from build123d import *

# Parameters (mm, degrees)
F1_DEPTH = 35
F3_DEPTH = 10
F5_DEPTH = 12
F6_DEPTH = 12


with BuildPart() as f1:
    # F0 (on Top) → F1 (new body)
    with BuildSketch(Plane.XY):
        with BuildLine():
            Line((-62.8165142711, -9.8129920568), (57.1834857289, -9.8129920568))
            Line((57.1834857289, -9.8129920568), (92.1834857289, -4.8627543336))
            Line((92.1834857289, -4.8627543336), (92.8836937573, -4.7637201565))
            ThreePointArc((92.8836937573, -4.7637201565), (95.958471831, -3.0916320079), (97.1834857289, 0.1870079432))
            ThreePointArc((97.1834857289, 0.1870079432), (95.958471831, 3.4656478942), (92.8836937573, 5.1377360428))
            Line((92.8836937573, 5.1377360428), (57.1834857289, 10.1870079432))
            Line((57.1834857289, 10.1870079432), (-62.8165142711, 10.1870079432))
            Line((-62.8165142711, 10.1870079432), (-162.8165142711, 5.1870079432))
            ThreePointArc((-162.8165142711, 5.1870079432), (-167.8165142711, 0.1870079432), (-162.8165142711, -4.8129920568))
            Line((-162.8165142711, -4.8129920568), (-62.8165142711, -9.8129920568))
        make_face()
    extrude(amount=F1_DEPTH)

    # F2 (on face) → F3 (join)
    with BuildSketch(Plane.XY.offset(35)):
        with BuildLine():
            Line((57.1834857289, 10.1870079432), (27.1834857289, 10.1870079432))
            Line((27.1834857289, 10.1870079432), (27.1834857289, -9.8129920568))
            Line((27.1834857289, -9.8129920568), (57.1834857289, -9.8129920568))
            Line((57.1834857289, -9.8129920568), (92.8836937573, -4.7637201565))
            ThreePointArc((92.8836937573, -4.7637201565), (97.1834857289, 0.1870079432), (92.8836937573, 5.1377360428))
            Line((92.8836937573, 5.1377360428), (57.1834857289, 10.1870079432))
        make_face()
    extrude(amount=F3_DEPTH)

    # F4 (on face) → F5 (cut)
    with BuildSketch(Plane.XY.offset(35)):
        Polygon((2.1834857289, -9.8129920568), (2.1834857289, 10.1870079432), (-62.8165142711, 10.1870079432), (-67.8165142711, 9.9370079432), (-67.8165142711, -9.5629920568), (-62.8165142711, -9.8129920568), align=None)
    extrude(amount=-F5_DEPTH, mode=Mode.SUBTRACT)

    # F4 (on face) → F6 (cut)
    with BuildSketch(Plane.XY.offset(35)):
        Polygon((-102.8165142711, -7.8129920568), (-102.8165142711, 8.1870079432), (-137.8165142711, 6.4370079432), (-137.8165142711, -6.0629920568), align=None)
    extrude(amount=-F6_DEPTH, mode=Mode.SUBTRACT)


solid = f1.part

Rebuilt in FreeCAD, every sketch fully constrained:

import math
import FreeCAD as App
import Part
import Sketcher
Q = App.Units.Quantity


def add_polygon(sketch, points):
    """Adds a closed chain of lines whose ends are joined by coincident constraints."""
    first, n = sketch.GeometryCount, len(points)
    for a, b in zip(points, points[1:] + points[:1]):
        sketch.addGeometry(Part.LineSegment(App.Vector(*a, 0), App.Vector(*b, 0)), False)
    for i in range(n):
        sketch.addConstraint(Sketcher.Constraint("Coincident", first + i, 2, first + (i + 1) % n, 1))

doc = App.newDocument("Part")
body = doc.addObject("PartDesign::Body", "Body")

# Sketch on XY plane
sketch1 = body.newObject("Sketcher::SketchObject", "Sketch")
sketch1.AttachmentSupport = (doc.getObject("XY_Plane"), [""])
sketch1.MapMode = "FlatFace"
sketch1.addGeometry([
    Part.LineSegment(App.Vector(-62.8, -9.8, 0), App.Vector(57.2, -9.8, 0)),  # 0
    Part.LineSegment(App.Vector(57.2, -9.8, 0), App.Vector(92.2, -4.9, 0)),  # 1
    Part.LineSegment(App.Vector(92.2, -4.9, 0), App.Vector(92.9, -4.8, 0)),  # 2
    Part.ArcOfCircle(Part.Circle(App.Vector(92.2, 0.2, 0), App.Vector(0, 0, 1), 5), math.radians(-82), math.radians(0)),  # 3
    Part.ArcOfCircle(Part.Circle(App.Vector(92.2, 0.2, 0), App.Vector(0, 0, 1), 5), math.radians(0), math.radians(82)),  # 4
    Part.LineSegment(App.Vector(92.9, 5.1, 0), App.Vector(57.2, 10.2, 0)),  # 5
    Part.LineSegment(App.Vector(57.2, 10.2, 0), App.Vector(-62.8, 10.2, 0)),  # 6
    Part.LineSegment(App.Vector(-62.8, 10.2, 0), App.Vector(-162.8, 5.2, 0)),  # 7
    Part.ArcOfCircle(Part.Circle(App.Vector(-162.8, 0.2, 0), App.Vector(0, 0, 1), 5), math.radians(90), math.radians(270)),  # 8
    Part.LineSegment(App.Vector(-162.8, -4.8, 0), App.Vector(-62.8, -9.8, 0)),  # 9
], False)
sketch1.addConstraint([
    Sketcher.Constraint("Coincident", 0, 2, 1, 1),
    Sketcher.Constraint("Coincident", 1, 2, 2, 1),
    Sketcher.Constraint("Tangent", 2, 2, 3, 1),
    Sketcher.Constraint("Tangent", 3, 2, 4, 1),
    Sketcher.Constraint("Tangent", 4, 2, 5, 1),
    Sketcher.Constraint("Coincident", 5, 2, 6, 1),
    Sketcher.Constraint("Coincident", 6, 2, 7, 1),
    Sketcher.Constraint("Coincident", 7, 2, 8, 1),
    Sketcher.Constraint("Coincident", 8, 2, 9, 1),
    Sketcher.Constraint("Coincident", 9, 2, 0, 1),
    Sketcher.Constraint("Horizontal", 0),
    Sketcher.Constraint("Horizontal", 6),
    Sketcher.Constraint("Equal", 3, 4),
    Sketcher.Constraint("Equal", 4, 8),
    Sketcher.Constraint("Parallel", 1, 2),
    Sketcher.Constraint("Horizontal", 4, 3, 8, 3),
    Sketcher.Constraint("Horizontal", 8, 3, 3, 2),
    Sketcher.Constraint("Vertical", 4, 3, 1, 2),
    Sketcher.Constraint("Vertical", 2, 2, 4, 2),
    Sketcher.Constraint("Vertical", 0, 2, 5, 2),
    Sketcher.Constraint("Vertical", 8, 3, 7, 2),
    Sketcher.Constraint("Vertical", 7, 2, 8, 2),
    Sketcher.Constraint("Vertical", 6, 2, 9, 2),
    Sketcher.Constraint("Radius", 3, Q("5 mm")),
    Sketcher.Constraint("DistanceX", 0, 1, 0, 2, Q("120 mm")),
    Sketcher.Constraint("DistanceX", 8, 3, 3, 3, Q("255 mm")),
    Sketcher.Constraint("DistanceX", 0, 2, 3, 3, Q("35 mm")),
    Sketcher.Constraint("DistanceY", 0, 2, 3, 3, Q("10 mm")),
    Sketcher.Constraint("DistanceY", 2, 2, -1, 1, Q("4.76372 mm")),
    Sketcher.Constraint("DistanceX", -1, 1, 3, 3, Q("92.183486 mm")),
])
pad1 = body.newObject("PartDesign::Pad", "Pad")
pad1.Profile = sketch1
pad1.Length = 35

# Sketch on XY plane
sketch2 = body.newObject("Sketcher::SketchObject", "Sketch001")
sketch2.AttachmentSupport = (doc.getObject("XY_Plane"), [""])
sketch2.MapMode = "FlatFace"
sketch2.AttachmentOffset = App.Placement(App.Vector(0, 0, 35), App.Rotation())
sketch2.addGeometry([
    Part.LineSegment(App.Vector(57, 10, 0), App.Vector(27, 10, 0)),  # 0
    Part.LineSegment(App.Vector(27, 10, 0), App.Vector(27, -10, 0)),  # 1
    Part.LineSegment(App.Vector(27, -10, 0), App.Vector(57, -10, 0)),  # 2
    Part.LineSegment(App.Vector(57, -10, 0), App.Vector(93, -5, 0)),  # 3
    Part.ArcOfCircle(Part.Circle(App.Vector(92, 0, 0), App.Vector(0, 0, 1), 5), math.radians(-82), math.radians(82)),  # 4
    Part.LineSegment(App.Vector(93, 5, 0), App.Vector(57, 10, 0)),  # 5
], False)
sketch2.addConstraint([
    Sketcher.Constraint("Coincident", 0, 2, 1, 1),
    Sketcher.Constraint("Coincident", 1, 2, 2, 1),
    Sketcher.Constraint("Coincident", 2, 2, 3, 1),
    Sketcher.Constraint("Tangent", 3, 2, 4, 1),
    Sketcher.Constraint("Tangent", 4, 2, 5, 1),
    Sketcher.Constraint("Coincident", 5, 2, 0, 1),
    Sketcher.Constraint("Horizontal", 0),
    Sketcher.Constraint("Vertical", 1),
    Sketcher.Constraint("Horizontal", 2),
    Sketcher.Constraint("Vertical", 3, 2, 4, 2),
    Sketcher.Constraint("Vertical", 2, 2, 5, 2),
    Sketcher.Constraint("Radius", 4, Q("5 mm")),
    Sketcher.Constraint("DistanceX", 0, 2, 0, 1, Q("30 mm")),
    Sketcher.Constraint("DistanceY", 1, 2, 1, 1, Q("20 mm")),
    Sketcher.Constraint("DistanceX", 0, 2, 4, 3, Q("65 mm")),
    Sketcher.Constraint("DistanceY", 3, 2, -1, 1, Q("4.76372 mm")),
    Sketcher.Constraint("DistanceX", -1, 1, 4, 3, Q("92.183486 mm")),
])
pad2 = body.newObject("PartDesign::Pad", "Pad001")
pad2.Profile = sketch2
pad2.Length = 10

# Sketch on XY plane
sketch3 = body.newObject("Sketcher::SketchObject", "Sketch002")
sketch3.AttachmentSupport = (doc.getObject("XY_Plane"), [""])
sketch3.MapMode = "FlatFace"
sketch3.AttachmentOffset = App.Placement(App.Vector(0, 0, 35), App.Rotation())
add_polygon(sketch3, [(2.183486, -9.812992), (2.183486, 10.187008), (-62.816514, 10.187008), (-67.816514, 9.937008), (-67.816514, -9.562992), (-62.816514, -9.812992)])  # lines 0-5
sketch3.addConstraint([
    Sketcher.Constraint("Vertical", 0),
    Sketcher.Constraint("Horizontal", 1),
    Sketcher.Constraint("Vertical", 3),
    Sketcher.Constraint("Horizontal", 5),
    Sketcher.Constraint("Vertical", 1, 2, 4, 2),
    Sketcher.Constraint("Equal", 2, 4),
    Sketcher.Constraint("DistanceX", 1, 2, 1, 1, Q("65 mm")),
    Sketcher.Constraint("DistanceY", 0, 1, 0, 2, Q("20 mm")),
    Sketcher.Constraint("DistanceY", 3, 2, 3, 1, Q("19.5 mm")),
    Sketcher.Constraint("DistanceX", 2, 2, 1, 2, Q("5 mm")),
    Sketcher.Constraint("DistanceX", -1, 1, 0, 2, Q("2.183486 mm")),
    Sketcher.Constraint("DistanceY", -1, 1, 0, 2, Q("10.187008 mm")),
])
pocket1 = body.newObject("PartDesign::Pocket", "Pocket")
pocket1.Profile = sketch3
pocket1.Length = 12

# Sketch on XY plane
sketch4 = body.newObject("Sketcher::SketchObject", "Sketch003")
sketch4.AttachmentSupport = (doc.getObject("XY_Plane"), [""])
sketch4.MapMode = "FlatFace"
sketch4.AttachmentOffset = App.Placement(App.Vector(0, 0, 35), App.Rotation())
add_polygon(sketch4, [(-103, -8), (-103, 8), (-138, 6), (-138, -6)])  # lines 0-3
sketch4.addConstraint([
    Sketcher.Constraint("Vertical", 0),
    Sketcher.Constraint("Vertical", 2),
    Sketcher.Constraint("Equal", 1, 3),
    Sketcher.Constraint("DistanceY", 0, 1, 0, 2, Q("16 mm")),
    Sketcher.Constraint("DistanceY", 2, 2, 2, 1, Q("12.5 mm")),
    Sketcher.Constraint("DistanceX", 1, 2, 0, 2, Q("35 mm")),
    Sketcher.Constraint("DistanceX", 0, 2, -1, 1, Q("102.816514 mm")),
    Sketcher.Constraint("DistanceY", -1, 1, 0, 2, Q("8.187008 mm")),
])
pocket2 = body.newObject("PartDesign::Pocket", "Pocket001")
pocket2.Profile = sketch4
pocket2.Length = 12

doc.recompute()
